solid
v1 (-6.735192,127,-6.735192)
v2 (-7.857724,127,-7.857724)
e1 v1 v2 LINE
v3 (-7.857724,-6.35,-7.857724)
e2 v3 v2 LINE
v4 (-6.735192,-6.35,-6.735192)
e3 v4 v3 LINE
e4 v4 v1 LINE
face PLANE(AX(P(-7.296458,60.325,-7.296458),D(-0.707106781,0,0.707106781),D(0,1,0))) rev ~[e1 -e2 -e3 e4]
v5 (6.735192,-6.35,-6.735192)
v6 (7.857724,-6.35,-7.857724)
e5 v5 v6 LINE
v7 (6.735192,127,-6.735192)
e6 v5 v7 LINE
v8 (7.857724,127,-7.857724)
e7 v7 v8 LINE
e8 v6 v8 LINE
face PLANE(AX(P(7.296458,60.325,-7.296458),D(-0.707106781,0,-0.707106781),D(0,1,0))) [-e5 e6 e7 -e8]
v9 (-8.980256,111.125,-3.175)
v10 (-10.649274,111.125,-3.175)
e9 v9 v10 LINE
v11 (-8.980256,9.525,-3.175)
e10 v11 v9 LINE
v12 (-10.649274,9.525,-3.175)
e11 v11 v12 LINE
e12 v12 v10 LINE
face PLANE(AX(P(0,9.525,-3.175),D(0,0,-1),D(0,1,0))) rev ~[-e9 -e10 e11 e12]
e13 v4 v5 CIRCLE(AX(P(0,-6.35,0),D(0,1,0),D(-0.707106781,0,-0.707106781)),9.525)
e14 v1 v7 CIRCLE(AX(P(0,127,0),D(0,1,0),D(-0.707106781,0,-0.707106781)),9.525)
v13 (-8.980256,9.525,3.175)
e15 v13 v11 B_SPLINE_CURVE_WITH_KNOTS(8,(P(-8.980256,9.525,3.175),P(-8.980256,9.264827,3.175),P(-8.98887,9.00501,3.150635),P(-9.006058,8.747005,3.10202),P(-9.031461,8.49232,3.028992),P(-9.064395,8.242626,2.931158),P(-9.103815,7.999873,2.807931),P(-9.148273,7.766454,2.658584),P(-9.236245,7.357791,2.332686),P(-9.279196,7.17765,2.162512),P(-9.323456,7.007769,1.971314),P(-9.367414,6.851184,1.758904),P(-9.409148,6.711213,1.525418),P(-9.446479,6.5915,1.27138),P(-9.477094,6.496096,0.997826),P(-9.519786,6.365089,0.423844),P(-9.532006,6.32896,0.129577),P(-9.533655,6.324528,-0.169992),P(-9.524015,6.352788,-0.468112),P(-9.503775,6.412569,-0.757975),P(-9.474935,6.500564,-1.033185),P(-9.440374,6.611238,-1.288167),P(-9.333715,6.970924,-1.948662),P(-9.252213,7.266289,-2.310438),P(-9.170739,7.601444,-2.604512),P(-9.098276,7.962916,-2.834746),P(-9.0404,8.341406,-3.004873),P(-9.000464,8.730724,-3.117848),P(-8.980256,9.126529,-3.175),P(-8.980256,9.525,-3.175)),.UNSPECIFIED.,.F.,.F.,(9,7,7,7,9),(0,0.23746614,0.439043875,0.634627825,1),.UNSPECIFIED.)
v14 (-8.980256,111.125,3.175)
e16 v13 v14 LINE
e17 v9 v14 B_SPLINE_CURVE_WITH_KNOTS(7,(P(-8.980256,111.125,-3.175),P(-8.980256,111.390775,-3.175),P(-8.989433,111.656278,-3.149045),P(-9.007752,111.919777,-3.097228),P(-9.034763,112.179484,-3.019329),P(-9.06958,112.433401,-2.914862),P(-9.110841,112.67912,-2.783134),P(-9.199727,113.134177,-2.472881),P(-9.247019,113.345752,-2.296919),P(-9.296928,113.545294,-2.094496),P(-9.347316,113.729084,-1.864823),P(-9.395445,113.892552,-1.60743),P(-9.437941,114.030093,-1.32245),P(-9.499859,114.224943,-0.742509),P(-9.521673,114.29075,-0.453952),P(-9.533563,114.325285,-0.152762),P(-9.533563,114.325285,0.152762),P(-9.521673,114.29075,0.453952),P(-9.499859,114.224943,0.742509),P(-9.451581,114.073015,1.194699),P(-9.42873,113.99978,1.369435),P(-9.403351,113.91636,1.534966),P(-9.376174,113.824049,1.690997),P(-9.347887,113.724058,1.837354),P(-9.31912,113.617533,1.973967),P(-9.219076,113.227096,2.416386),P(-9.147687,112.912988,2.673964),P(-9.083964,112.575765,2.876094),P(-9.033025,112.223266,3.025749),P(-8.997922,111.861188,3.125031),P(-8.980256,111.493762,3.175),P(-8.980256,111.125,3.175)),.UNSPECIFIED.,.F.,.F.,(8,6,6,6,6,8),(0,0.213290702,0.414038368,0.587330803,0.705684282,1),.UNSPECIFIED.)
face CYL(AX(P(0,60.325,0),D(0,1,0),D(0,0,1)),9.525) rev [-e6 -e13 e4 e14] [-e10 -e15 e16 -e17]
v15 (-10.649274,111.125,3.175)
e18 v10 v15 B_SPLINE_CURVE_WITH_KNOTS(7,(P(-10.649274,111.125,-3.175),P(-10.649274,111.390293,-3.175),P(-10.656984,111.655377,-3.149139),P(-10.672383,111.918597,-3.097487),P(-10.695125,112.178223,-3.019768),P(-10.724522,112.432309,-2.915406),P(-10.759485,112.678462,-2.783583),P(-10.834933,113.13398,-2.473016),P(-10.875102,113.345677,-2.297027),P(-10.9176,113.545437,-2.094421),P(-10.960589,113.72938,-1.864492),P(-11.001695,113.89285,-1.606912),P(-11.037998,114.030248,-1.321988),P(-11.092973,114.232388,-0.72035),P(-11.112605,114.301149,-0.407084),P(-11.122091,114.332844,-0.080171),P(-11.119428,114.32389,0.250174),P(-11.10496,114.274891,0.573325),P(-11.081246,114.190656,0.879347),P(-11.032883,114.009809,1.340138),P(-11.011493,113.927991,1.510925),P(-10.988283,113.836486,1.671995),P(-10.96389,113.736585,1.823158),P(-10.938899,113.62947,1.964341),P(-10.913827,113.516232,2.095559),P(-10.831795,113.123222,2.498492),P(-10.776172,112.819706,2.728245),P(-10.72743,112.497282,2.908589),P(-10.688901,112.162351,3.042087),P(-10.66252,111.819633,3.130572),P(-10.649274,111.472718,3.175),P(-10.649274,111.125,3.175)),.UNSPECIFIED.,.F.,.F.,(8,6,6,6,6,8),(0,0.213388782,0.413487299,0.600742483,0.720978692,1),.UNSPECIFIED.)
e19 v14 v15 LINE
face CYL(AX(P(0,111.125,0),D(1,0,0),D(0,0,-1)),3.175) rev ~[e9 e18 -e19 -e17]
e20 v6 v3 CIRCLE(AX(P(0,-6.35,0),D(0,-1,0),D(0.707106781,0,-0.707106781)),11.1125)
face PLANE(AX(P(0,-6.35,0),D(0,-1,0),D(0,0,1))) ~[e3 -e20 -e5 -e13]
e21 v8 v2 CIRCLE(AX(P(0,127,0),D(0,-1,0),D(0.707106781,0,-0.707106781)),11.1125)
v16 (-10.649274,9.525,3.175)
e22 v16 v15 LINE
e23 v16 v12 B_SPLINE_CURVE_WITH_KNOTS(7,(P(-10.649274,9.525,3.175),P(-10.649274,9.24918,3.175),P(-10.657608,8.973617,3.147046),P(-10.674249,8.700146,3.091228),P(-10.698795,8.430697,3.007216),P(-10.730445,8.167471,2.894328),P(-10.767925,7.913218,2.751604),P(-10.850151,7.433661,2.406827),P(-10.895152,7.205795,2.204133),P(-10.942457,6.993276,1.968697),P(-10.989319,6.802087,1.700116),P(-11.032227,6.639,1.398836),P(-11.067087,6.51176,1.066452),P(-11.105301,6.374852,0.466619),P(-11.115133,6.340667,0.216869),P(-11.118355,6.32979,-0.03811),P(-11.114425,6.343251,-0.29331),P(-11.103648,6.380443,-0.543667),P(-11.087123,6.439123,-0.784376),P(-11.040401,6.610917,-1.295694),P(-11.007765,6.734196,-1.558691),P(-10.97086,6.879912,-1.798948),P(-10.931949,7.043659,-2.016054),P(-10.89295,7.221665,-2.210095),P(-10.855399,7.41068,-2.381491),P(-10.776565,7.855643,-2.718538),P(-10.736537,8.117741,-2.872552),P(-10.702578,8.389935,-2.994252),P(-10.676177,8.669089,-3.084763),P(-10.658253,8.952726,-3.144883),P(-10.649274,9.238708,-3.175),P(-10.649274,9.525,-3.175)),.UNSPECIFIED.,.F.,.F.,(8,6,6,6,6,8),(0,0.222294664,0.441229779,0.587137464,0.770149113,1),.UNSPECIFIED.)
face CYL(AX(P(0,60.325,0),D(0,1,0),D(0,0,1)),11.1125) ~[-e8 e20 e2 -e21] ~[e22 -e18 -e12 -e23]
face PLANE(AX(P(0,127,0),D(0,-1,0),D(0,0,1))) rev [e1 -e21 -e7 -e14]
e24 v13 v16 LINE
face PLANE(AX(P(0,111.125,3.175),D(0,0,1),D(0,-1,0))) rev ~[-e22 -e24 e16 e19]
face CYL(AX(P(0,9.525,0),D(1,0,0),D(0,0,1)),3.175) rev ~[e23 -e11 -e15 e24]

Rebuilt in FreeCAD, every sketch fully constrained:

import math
import FreeCAD as App
import Part
import Sketcher
from FreeCAD import Vector
Q = App.Units.Quantity

doc = App.newDocument("Part")
body = doc.addObject("PartDesign::Body", "Body")

sketch1 = body.newObject("Sketcher::SketchObject", "Sketch")
sketch1.AttachmentSupport = (doc.getObject("YZ_Plane"), [""])
sketch1.MapMode = "FlatFace"
sketch1.addGeometry([
    Part.LineSegment(Vector(-6.35, 11.1125, 0), Vector(-6.35, 9.525, 0)),
    Part.LineSegment(Vector(-6.35, 9.525, 0), Vector(127, 9.525, 0)),
    Part.LineSegment(Vector(127, 9.525, 0), Vector(127, 11.1125, 0)),
    Part.LineSegment(Vector(127, 11.1125, 0), Vector(-6.35, 11.1125, 0)),
], False)
sketch1.addConstraint([
    Sketcher.Constraint("Coincident", 0, 2, 1, 1),
    Sketcher.Constraint("Coincident", 1, 2, 2, 1),
    Sketcher.Constraint("Coincident", 2, 2, 3, 1),
    Sketcher.Constraint("Coincident", 3, 2, 0, 1),
    Sketcher.Constraint("Vertical", 0),
    Sketcher.Constraint("Horizontal", 1),
    Sketcher.Constraint("Vertical", 2),
    Sketcher.Constraint("Horizontal", 3),
    Sketcher.Constraint("DistanceX", -1, 1, 1, 2, Q("5 in")),
    Sketcher.Constraint("DistanceX", 1, 1, 1, 2, Q("5.25 in")),
    Sketcher.Constraint("DistanceY", 0, 2, 0, 1, Q("0.0625 in")),
    Sketcher.Constraint("DistanceY", -1, 1, 0, 2, Q("0.375 in")),
])
revolution = body.newObject("PartDesign::Revolution", "Revolution")
revolution.Profile = sketch1
revolution.ReferenceAxis = (sketch1, ["H_Axis"])
revolution.Angle = 135

sketch2 = body.newObject("Sketcher::SketchObject", "Sketch001")
sketch2.AttachmentSupport = (doc.getObject("YZ_Plane"), [""])
sketch2.MapMode = "FlatFace"
sketch2.addGeometry([
    Part.LineSegment(Vector(-6.35, 11.1125, 0), Vector(-6.35, 9.525, 0)),
    Part.LineSegment(Vector(-6.35, 9.525, 0), Vector(127, 9.525, 0)),
    Part.LineSegment(Vector(127, 9.525, 0), Vector(127, 11.1125, 0)),
    Part.LineSegment(Vector(127, 11.1125, 0), Vector(-6.35, 11.1125, 0)),
], False)
sketch2.addConstraint([
    Sketcher.Constraint("Coincident", 0, 2, 1, 1),
    Sketcher.Constraint("Coincident", 1, 2, 2, 1),
    Sketcher.Constraint("Coincident", 2, 2, 3, 1),
    Sketcher.Constraint("Coincident", 3, 2, 0, 1),
    Sketcher.Constraint("Vertical", 0),
    Sketcher.Constraint("Horizontal", 1),
    Sketcher.Constraint("Vertical", 2),
    Sketcher.Constraint("Horizontal", 3),
    Sketcher.Constraint("DistanceX", -1, 1, 1, 2, Q("5 in")),
    Sketcher.Constraint("DistanceX", 1, 1, 1, 2, Q("5.25 in")),
    Sketcher.Constraint("DistanceY", 0, 2, 0, 1, Q("0.0625 in")),
    Sketcher.Constraint("DistanceY", -1, 1, 0, 2, Q("0.375 in")),
])
revolution2 = body.newObject("PartDesign::Revolution", "Revolution001")
revolution2.Profile = sketch2
revolution2.ReferenceAxis = (sketch2, ["H_Axis"])
revolution2.Angle = 135
revolution2.Reversed = True

sketch3 = body.newObject("Sketcher::SketchObject", "Sketch002")
sketch3.AttachmentSupport = (doc.getObject("YZ_Plane"), [""])
sketch3.MapMode = "FlatFace"
sketch3.addGeometry([
    Part.LineSegment(Vector(111.125, 3.175, 0), Vector(9.525, 3.175, 0)),
    Part.ArcOfCircle(Part.Circle(Vector(9.525, 0, 0), Vector(0, 0, 1), 3.175), math.radians(90), math.radians(270)),
    Part.LineSegment(Vector(9.525, -3.175, 0), Vector(111.125, -3.175, 0)),
    Part.ArcOfCircle(Part.Circle(Vector(111.125, 0, 0), Vector(0, 0, 1), 3.175), math.radians(-90), math.radians(90)),
], False)
sketch3.addConstraint([
    Sketcher.Constraint("Tangent", 0, 2, 1, 1),
    Sketcher.Constraint("Tangent", 1, 2, 2, 1),
    Sketcher.Constraint("Tangent", 2, 2, 3, 1),
    Sketcher.Constraint("Tangent", 3, 2, 0, 1),
    Sketcher.Constraint("Horizontal", 0),
    Sketcher.Constraint("Horizontal", 2),
    Sketcher.Constraint("PointOnObject", 1, 3, -1),
    Sketcher.Constraint("DistanceX", 0, 2, 0, 1, Q("4 in")),
    Sketcher.Constraint("Radius", 1, Q("0.125 in")),
    Sketcher.Constraint("DistanceX", -1, 1, 1, 3, Q("0.375 in")),
])
pocket1 = body.newObject("PartDesign::Pocket", "Pocket")
pocket1.Profile = sketch3
pocket1.Length = Q("1 in")

doc.recompute()
